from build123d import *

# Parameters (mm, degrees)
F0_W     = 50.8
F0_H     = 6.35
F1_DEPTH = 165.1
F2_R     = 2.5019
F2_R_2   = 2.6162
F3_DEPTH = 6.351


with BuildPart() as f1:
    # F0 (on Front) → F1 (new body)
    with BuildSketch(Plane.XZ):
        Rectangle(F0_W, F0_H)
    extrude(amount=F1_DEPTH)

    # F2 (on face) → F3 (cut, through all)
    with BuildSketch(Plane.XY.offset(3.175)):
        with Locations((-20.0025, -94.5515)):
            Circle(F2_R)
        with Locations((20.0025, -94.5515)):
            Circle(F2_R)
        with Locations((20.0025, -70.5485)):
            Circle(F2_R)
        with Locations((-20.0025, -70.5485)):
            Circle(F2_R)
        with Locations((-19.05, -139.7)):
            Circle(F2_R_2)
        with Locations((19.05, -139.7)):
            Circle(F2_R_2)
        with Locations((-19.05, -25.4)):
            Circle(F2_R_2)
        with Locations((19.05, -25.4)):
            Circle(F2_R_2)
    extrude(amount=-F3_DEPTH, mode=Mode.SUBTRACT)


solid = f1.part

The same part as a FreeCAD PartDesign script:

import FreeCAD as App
import Part
import Sketcher

V = App.Vector
Q = App.Units.Quantity


def add_polygon(sketch, points):
    """Adds a closed chain of lines whose ends are joined by coincident constraints."""
    first, n = sketch.GeometryCount, len(points)
    for a, b in zip(points, points[1:] + points[:1]):
        sketch.addGeometry(Part.LineSegment(App.Vector(*a, 0), App.Vector(*b, 0)), False)
    for i in range(n):
        sketch.addConstraint(Sketcher.Constraint("Coincident", first + i, 2, first + (i + 1) % n, 1))

doc = App.newDocument("Part")
body = doc.addObject("PartDesign::Body", "Body")

# Sketch on XZ plane
sketch1 = doc.addObject("Sketcher::SketchObject", "Sketch")
body.addObject(sketch1)
sketch1.AttachmentSupport = (doc.XZ_Plane, [""])
sketch1.MapMode = "FlatFace"
add_polygon(sketch1, [(-25, 3), (-25, -3), (25, -3), (25, 3)])  # lines 0-3
sketch1.addConstraint([
    Sketcher.Constraint("Vertical", 0),
    Sketcher.Constraint("Horizontal", 1),
    Sketcher.Constraint("Vertical", 2),
    Sketcher.Constraint("Horizontal", 3),
    Sketcher.Constraint("Symmetric", 0, 2, 2, 2, -1, 1),
    Sketcher.Constraint("DistanceX", 1, 1, 1, 2, Q("2 in")),
    Sketcher.Constraint("DistanceY", 0, 2, 0, 1, Q("0.25 in")),
])
pad1 = doc.addObject("PartDesign::Pad", "Pad")
body.addObject(pad1)
pad1.Profile = sketch1
pad1.Length = Q("6.5 in")

# Sketch on XY plane
sketch2 = doc.addObject("Sketcher::SketchObject", "Sketch001")
body.addObject(sketch2)
sketch2.AttachmentSupport = (doc.XY_Plane, [""])
sketch2.MapMode = "FlatFace"
sketch2.AttachmentOffset = App.Placement(V(0, 0, 0.125 * 25.4), App.Rotation())
sketch2.addGeometry([
    Part.Circle(V(-20, -94.6, 0), V(0, 0, 1), 2.5),  # 0
    Part.Circle(V(20, -94.6, 0), V(0, 0, 1), 2.5),  # 1
    Part.Circle(V(20, -70.5, 0), V(0, 0, 1), 2.5),  # 2
    Part.Circle(V(-20, -70.5, 0), V(0, 0, 1), 2.5),  # 3
    Part.Circle(V(-19.1, -139.7, 0), V(0, 0, 1), 2.6),  # 4
    Part.Circle(V(19.1, -139.7, 0), V(0, 0, 1), 2.6),  # 5
    Part.Circle(V(-19.1, -25.4, 0), V(0, 0, 1), 2.6),  # 6
    Part.Circle(V(19.1, -25.4, 0), V(0, 0, 1), 2.6),  # 7
], False)
sketch2.addConstraint([
    Sketcher.Constraint("Equal", 0, 1),
    Sketcher.Constraint("Equal", 1, 2),
    Sketcher.Constraint("Equal", 2, 3),
    Sketcher.Constraint("Equal", 4, 5),
    Sketcher.Constraint("Equal", 5, 6),
    Sketcher.Constraint("Equal", 6, 7),
    Sketcher.Constraint("Symmetric", 0, 3, 1, 3, -2),
    Sketcher.Constraint("Symmetric", 2, 3, 3, 3, -2),
    Sketcher.Constraint("Symmetric", 4, 3, 5, 3, -2),
    Sketcher.Constraint("Symmetric", 6, 3, 7, 3, -2),
    Sketcher.Constraint("Vertical", 1, 3, 2, 3),
    Sketcher.Constraint("Vertical", 4, 3, 6, 3),
    Sketcher.Constraint("Diameter", 0, Q("0.197 in")),
    Sketcher.Constraint("Diameter", 4, Q("0.206 in")),
    Sketcher.Constraint("DistanceY", 6, 3, -1, 1, Q("1 in")),
    Sketcher.Constraint("DistanceY", 4, 3, -1, 1, Q("5.5 in")),
    Sketcher.Constraint("DistanceX", 4, 3, 5, 3, Q("1.5 in")),
    Sketcher.Constraint("DistanceX", 0, 3, 1, 3, Q("1.575 in")),
    Sketcher.Constraint("DistanceY", 1, 3, 2, 3, Q("0.945 in")),
    Sketcher.Constraint("DistanceY", 0, 3, -1, 1, Q("3.7225 in")),
])
pocket1 = doc.addObject("PartDesign::Pocket", "Pocket")
body.addObject(pocket1)
pocket1.Profile = sketch2
pocket1.Type = "ThroughAll"

doc.recompute()
